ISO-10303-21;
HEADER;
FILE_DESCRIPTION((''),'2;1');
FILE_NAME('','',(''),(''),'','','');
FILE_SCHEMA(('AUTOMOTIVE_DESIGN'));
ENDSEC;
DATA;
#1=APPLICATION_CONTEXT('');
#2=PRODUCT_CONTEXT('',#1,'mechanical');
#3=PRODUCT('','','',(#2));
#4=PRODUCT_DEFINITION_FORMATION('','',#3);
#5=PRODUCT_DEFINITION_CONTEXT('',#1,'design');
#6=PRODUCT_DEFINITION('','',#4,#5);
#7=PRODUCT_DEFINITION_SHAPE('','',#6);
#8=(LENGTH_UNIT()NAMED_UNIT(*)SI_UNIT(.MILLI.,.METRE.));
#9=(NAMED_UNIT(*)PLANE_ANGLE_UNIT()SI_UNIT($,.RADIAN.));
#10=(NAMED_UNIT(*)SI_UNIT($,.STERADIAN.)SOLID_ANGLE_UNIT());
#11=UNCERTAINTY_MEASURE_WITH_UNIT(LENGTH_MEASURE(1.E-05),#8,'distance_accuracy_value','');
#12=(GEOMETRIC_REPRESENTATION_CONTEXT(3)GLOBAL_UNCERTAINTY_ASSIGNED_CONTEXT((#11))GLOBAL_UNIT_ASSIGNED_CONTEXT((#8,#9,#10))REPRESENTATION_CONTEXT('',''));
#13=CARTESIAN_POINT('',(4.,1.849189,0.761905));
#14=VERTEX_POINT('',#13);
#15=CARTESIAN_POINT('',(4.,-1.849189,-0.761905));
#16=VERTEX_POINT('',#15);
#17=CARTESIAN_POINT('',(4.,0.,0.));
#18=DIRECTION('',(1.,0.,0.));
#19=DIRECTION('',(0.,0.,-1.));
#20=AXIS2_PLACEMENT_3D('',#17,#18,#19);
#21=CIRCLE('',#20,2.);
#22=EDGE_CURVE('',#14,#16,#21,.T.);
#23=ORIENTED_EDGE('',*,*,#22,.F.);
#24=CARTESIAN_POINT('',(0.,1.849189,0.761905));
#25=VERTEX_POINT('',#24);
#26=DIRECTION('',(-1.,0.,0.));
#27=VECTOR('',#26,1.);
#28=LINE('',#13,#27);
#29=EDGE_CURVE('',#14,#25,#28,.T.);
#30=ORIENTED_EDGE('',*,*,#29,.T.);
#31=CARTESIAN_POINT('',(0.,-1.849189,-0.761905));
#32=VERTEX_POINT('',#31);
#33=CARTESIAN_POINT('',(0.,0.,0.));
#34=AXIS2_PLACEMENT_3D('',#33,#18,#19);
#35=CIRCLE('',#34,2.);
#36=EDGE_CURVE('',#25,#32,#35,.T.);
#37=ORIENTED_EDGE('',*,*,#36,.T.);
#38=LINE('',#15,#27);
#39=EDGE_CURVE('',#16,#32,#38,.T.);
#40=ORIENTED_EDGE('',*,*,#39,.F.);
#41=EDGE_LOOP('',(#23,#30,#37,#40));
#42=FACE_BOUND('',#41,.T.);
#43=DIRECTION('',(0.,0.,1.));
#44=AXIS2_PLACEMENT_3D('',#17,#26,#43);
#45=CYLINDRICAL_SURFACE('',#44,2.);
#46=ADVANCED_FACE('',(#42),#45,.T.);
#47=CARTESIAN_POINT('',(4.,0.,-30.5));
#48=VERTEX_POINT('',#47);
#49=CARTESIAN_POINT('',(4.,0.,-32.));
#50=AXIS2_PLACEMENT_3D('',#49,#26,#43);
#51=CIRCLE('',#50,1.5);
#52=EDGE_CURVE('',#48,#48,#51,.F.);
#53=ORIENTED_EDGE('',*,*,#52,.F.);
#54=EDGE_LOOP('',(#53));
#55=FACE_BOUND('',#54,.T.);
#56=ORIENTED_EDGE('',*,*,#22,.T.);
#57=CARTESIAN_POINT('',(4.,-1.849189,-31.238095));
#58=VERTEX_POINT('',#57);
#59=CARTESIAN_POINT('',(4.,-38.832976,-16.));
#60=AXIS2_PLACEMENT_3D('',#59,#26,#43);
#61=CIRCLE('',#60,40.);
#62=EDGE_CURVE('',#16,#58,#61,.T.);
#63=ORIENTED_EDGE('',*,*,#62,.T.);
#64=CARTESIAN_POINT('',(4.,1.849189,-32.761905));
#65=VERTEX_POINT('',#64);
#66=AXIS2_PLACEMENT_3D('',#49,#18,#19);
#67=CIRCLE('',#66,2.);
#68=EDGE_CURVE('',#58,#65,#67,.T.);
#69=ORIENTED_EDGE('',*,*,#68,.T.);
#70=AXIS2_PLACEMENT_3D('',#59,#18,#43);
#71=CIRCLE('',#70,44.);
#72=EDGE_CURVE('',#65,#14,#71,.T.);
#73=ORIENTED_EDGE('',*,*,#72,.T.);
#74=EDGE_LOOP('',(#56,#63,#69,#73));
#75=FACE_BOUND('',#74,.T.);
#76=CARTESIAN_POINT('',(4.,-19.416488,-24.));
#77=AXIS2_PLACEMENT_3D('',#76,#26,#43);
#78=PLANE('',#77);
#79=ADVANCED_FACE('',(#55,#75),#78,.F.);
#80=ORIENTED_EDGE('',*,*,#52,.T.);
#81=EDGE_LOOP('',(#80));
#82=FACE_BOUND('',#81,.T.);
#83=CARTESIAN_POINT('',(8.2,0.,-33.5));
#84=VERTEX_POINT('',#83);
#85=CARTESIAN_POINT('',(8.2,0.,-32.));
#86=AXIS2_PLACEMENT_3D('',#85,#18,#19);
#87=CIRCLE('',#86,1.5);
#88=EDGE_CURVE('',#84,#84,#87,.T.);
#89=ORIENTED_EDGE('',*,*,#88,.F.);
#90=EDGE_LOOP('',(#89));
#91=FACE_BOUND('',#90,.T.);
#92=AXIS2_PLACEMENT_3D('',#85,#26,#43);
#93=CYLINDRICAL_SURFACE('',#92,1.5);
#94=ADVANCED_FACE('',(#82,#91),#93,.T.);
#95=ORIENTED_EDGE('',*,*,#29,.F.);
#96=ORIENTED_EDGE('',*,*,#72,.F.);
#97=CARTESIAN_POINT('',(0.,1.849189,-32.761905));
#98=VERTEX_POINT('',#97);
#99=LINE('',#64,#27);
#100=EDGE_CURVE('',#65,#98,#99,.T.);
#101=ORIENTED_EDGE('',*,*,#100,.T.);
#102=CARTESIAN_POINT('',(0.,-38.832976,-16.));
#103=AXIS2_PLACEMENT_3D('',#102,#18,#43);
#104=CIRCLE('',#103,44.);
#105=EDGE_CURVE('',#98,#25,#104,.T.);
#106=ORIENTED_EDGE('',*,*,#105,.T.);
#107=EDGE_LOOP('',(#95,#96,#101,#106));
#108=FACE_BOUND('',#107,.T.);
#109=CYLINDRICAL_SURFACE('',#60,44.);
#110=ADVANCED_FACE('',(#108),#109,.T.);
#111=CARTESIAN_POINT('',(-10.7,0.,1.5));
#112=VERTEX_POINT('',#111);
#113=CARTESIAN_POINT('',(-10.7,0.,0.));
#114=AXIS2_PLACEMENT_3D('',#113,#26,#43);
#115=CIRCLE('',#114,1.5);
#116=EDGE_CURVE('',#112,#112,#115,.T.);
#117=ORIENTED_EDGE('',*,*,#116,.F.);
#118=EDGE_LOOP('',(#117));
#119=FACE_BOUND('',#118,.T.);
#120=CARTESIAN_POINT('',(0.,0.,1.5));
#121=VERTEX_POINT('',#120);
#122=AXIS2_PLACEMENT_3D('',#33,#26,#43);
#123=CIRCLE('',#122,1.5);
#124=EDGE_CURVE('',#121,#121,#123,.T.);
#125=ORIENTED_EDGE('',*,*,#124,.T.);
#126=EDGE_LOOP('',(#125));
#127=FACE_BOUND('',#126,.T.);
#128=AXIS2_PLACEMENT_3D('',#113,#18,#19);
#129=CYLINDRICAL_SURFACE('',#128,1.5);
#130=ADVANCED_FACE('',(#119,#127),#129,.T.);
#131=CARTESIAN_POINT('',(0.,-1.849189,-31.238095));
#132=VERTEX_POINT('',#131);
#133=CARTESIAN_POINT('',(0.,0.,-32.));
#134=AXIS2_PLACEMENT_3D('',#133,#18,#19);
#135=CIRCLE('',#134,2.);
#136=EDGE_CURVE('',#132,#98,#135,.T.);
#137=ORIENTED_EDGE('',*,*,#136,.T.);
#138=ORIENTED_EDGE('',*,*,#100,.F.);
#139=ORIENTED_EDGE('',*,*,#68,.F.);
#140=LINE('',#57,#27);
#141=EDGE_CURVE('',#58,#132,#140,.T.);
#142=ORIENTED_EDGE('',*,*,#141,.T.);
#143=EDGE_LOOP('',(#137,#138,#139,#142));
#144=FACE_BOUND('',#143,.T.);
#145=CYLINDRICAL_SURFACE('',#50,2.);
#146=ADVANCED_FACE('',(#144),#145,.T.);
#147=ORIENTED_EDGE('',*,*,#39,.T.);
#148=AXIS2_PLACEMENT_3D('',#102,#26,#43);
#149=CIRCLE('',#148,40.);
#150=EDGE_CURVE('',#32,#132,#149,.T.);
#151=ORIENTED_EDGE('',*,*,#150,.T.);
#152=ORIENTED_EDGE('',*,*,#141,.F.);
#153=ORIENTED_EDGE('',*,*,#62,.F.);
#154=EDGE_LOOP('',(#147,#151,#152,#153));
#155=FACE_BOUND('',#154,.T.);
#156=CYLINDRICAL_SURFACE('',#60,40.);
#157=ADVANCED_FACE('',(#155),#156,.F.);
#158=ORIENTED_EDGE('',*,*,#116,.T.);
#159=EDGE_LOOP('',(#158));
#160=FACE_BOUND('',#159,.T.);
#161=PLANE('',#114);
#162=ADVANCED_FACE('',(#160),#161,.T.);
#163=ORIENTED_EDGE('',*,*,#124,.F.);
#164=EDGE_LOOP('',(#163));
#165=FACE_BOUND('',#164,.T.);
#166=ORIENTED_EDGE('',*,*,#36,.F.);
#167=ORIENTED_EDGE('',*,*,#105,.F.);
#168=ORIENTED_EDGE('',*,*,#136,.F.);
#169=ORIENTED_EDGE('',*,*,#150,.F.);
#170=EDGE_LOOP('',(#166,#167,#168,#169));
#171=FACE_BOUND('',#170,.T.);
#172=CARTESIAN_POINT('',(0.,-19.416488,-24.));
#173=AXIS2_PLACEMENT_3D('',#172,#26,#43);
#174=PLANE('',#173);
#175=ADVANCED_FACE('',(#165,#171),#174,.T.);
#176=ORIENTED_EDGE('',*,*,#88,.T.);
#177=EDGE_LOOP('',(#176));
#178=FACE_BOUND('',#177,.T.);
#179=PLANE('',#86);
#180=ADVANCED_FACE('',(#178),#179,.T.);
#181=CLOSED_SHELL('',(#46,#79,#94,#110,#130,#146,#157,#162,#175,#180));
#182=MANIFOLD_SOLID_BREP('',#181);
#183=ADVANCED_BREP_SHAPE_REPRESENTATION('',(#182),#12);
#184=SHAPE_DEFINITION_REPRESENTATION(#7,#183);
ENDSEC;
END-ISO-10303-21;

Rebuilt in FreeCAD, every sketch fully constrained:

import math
import FreeCAD as App
import Part
import Sketcher
from FreeCAD import Vector
Q = App.Units.Quantity

doc = App.newDocument("Part")
params = doc.addObject("Spreadsheet::Sheet", "Params")
for row, (alias, value) in enumerate([
    ("sketch1_radius", "2 mm"),
    ("sketch1_radius2", "40 mm"),
    ("pad1_length", "4 mm"),
    ("sketch2_diameter", "3 mm"),
    ("pad2_length", "4.2 mm"),
    ("sketch3_diameter", "3 mm"),
    ("pad3_length", "10.7 mm"),
], start=1):
    params.set(f"A{row}", alias)
    params.set(f"B{row}", "=" + value)
    params.setAlias(f"B{row}", alias)

body = doc.addObject("PartDesign::Body", "Body")

sketch1 = doc.addObject("Sketcher::SketchObject", "Sketch")
body.addObject(sketch1)
sketch1.AttachmentSupport = (doc.YZ_Plane, [""])
sketch1.MapMode = "FlatFace"
sketch1.addGeometry(Part.ArcOfCircle(Part.Circle(Vector(0, 0, 0), Vector(0, 0, 1), 2), math.radians(22), math.radians(202)), False)
sketch1.addGeometry(Part.ArcOfCircle(Part.Circle(Vector(-38.8, -16, 0), Vector(0, 0, 1), 40), math.radians(-22), math.radians(22)), False)
sketch1.addGeometry(Part.ArcOfCircle(Part.Circle(Vector(0, -32, 0), Vector(0, 0, 1), 2), math.radians(158), math.radians(338)), False)
sketch1.addGeometry(Part.ArcOfCircle(Part.Circle(Vector(-38.8, -16, 0), Vector(0, 0, 1), 44), math.radians(-22), math.radians(22)), False)
sketch1.addConstraint(Sketcher.Constraint("Tangent", 0, 2, 1, 2))
sketch1.addConstraint(Sketcher.Constraint("Tangent", 1, 1, 2, 1))
sketch1.addConstraint(Sketcher.Constraint("Tangent", 2, 2, 3, 1))
sketch1.addConstraint(Sketcher.Constraint("Tangent", 3, 2, 0, 1))
sketch1.addConstraint(Sketcher.Constraint("Coincident", 0, 3, -1, 1))
sketch1.addConstraint(Sketcher.Constraint("Coincident", 3, 3, 1, 3))
sketch1.addConstraint(Sketcher.Constraint("PointOnObject", 2, 3, -2))
sketch1.addConstraint(Sketcher.Constraint("Radius", 0, Q("2 mm")))
sketch1.addConstraint(Sketcher.Constraint("Radius", 1, Q("40 mm")))
sketch1.addConstraint(Sketcher.Constraint("DistanceY", 1, 3, -1, 1, Q("16 mm")))
sketch1.setExpression("Constraints[7]", "Params.sketch1_radius")
sketch1.setExpression("Constraints[8]", "Params.sketch1_radius2")
pad1 = doc.addObject("PartDesign::Pad", "Pad")
body.addObject(pad1)
pad1.Profile = sketch1
pad1.setExpression("Length", "Params.pad1_length")

sketch2 = doc.addObject("Sketcher::SketchObject", "Sketch001")
body.addObject(sketch2)
sketch2.AttachmentSupport = (doc.YZ_Plane, [""])
sketch2.MapMode = "FlatFace"
sketch2.AttachmentOffset = App.Placement(Vector(0, 0, 4), App.Rotation())
sketch2.addGeometry(Part.Circle(Vector(0, -32, 0), Vector(0, 0, 1), 1.5), False)
sketch2.addConstraint(Sketcher.Constraint("PointOnObject", 0, 3, -2))
sketch2.addConstraint(Sketcher.Constraint("Diameter", 0, Q("3 mm")))
sketch2.addConstraint(Sketcher.Constraint("DistanceY", 0, 3, -1, 1, Q("32 mm")))
sketch2.setExpression("Constraints[1]", "Params.sketch2_diameter")
pad2 = doc.addObject("PartDesign::Pad", "Pad001")
body.addObject(pad2)
pad2.Profile = sketch2
pad2.setExpression("Length", "Params.pad2_length")

sketch3 = doc.addObject("Sketcher::SketchObject", "Sketch002")
body.addObject(sketch3)
sketch3.AttachmentSupport = (doc.YZ_Plane, [""])
sketch3.MapMode = "FlatFace"
sketch3.addGeometry(Part.Circle(Vector(0, 0, 0), Vector(0, 0, 1), 1.5), False)
sketch3.addConstraint(Sketcher.Constraint("Coincident", 0, 3, -1, 1))
sketch3.addConstraint(Sketcher.Constraint("Diameter", 0, Q("3 mm")))
sketch3.setExpression("Constraints[1]", "Params.sketch3_diameter")
pad3 = doc.addObject("PartDesign::Pad", "Pad002")
body.addObject(pad3)
pad3.Profile = sketch3
pad3.setExpression("Length", "Params.pad3_length")
pad3.Reversed = True

doc.recompute()
